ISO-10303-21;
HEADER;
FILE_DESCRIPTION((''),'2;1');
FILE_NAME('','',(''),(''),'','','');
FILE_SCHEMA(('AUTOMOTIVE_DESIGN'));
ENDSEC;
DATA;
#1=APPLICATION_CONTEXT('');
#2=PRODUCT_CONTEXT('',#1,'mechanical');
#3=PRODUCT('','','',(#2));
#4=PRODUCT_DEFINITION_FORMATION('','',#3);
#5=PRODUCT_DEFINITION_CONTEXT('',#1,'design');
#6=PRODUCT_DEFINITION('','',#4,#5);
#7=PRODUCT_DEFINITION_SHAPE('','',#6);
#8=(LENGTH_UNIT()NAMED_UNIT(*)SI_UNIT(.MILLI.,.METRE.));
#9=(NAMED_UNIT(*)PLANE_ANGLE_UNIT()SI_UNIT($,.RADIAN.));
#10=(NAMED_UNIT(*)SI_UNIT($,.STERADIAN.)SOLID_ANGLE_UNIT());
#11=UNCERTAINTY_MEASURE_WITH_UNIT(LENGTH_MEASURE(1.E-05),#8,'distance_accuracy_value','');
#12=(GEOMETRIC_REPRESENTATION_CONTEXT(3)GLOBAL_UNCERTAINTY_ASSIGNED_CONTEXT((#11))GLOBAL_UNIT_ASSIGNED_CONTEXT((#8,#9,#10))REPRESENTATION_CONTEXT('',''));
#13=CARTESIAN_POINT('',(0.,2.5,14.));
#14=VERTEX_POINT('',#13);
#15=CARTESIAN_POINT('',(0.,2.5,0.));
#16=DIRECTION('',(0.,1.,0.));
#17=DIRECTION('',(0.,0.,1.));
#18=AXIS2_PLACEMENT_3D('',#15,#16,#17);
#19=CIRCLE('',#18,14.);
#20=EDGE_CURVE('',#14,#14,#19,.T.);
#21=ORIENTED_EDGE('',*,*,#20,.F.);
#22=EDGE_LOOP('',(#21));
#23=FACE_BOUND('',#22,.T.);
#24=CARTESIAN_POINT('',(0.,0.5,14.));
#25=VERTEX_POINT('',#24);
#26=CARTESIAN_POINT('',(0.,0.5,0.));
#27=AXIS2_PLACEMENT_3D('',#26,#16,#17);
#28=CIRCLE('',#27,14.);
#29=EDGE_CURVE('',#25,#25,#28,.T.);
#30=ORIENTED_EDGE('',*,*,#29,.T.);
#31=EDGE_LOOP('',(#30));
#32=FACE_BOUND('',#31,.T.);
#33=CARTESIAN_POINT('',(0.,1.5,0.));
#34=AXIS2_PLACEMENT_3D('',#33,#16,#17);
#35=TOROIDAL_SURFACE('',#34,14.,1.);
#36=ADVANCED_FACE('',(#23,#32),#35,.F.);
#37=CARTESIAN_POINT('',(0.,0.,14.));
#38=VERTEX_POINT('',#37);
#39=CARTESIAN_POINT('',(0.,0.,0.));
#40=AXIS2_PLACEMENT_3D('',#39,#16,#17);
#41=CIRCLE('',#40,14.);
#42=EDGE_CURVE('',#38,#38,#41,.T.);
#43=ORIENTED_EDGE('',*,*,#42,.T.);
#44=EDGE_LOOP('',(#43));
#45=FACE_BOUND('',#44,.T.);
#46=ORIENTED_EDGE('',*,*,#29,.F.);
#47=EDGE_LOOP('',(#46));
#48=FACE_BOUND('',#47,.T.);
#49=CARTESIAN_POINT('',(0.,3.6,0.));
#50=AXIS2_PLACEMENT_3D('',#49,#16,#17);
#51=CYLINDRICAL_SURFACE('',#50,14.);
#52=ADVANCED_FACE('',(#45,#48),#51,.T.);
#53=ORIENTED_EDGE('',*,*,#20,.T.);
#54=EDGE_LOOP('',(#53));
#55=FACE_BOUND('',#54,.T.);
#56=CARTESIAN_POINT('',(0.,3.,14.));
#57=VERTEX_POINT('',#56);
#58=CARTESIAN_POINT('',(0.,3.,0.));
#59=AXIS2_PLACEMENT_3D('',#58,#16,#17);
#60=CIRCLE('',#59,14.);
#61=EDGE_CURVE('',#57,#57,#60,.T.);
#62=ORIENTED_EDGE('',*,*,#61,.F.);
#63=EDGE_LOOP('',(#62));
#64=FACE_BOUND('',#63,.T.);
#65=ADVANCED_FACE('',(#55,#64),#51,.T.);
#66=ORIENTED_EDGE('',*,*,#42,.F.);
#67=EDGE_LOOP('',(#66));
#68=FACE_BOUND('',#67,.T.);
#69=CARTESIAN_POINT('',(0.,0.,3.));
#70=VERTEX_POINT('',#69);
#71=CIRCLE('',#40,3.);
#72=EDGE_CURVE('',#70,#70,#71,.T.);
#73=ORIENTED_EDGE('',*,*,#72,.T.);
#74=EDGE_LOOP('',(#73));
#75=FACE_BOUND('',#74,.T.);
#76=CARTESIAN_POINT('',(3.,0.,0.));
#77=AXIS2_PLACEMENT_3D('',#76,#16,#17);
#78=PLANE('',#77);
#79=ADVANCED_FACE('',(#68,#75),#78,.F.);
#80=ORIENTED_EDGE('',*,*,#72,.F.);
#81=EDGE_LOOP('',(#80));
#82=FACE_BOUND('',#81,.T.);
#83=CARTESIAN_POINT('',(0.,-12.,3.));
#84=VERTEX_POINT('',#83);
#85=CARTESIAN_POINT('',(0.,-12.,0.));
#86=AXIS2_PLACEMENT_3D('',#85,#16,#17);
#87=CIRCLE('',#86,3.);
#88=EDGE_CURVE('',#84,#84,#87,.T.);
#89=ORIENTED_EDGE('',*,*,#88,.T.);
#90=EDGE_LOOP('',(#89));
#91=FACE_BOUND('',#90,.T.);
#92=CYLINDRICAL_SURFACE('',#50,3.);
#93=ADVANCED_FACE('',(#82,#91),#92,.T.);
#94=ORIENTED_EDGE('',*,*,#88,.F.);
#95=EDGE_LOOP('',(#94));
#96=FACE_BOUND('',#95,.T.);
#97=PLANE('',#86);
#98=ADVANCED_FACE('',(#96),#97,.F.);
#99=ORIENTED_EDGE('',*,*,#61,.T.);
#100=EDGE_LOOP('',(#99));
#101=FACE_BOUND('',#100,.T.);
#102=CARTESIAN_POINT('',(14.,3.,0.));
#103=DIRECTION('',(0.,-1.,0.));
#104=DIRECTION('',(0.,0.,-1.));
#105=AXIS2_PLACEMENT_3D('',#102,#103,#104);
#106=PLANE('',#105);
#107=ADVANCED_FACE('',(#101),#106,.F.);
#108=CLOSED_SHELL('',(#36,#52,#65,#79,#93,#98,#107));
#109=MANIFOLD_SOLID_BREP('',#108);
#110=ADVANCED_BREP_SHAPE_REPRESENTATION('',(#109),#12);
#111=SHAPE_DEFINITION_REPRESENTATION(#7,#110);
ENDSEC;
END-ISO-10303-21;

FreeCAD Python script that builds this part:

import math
import FreeCAD as App
import Part
import Sketcher
from FreeCAD import Vector
Q = App.Units.Quantity

doc = App.newDocument("Part")
params = doc.addObject("Spreadsheet::Sheet", "Params")
for row, (alias, value) in enumerate([
    ("sketch1_radius", "1 mm"),
    ("sketch1_width", "11 mm"),
    ("sketch1_width2", "14 mm"),
    ("sketch1_height", "15 mm"),
    ("sketch1_height2", "12 mm"),
    ("revolution_angle", "360 deg"),
], start=1):
    params.set(f"A{row}", alias)
    params.set(f"B{row}", "=" + value)
    params.setAlias(f"B{row}", alias)

body = doc.addObject("PartDesign::Body", "Body")

sketch1 = body.newObject("Sketcher::SketchObject", "Sketch")
sketch1.AttachmentSupport = (doc.getObject("XY_Plane"), [""])
sketch1.MapMode = "FlatFace"
sketch1.addGeometry([
    Part.LineSegment(Vector(3, 0, 0), Vector(14, 0, 0)),
    Part.LineSegment(Vector(14, 0, 0), Vector(14, 0.5, 0)),
    Part.ArcOfCircle(Part.Circle(Vector(14, 1.5, 0), Vector(0, 0, 1), 1), math.radians(90), math.radians(270)),
    Part.LineSegment(Vector(14, 2.5, 0), Vector(14, 3, 0)),
    Part.LineSegment(Vector(14, 3, 0), Vector(0, 3, 0)),
    Part.LineSegment(Vector(0, 3, 0), Vector(0, -12, 0)),
    Part.LineSegment(Vector(0, -12, 0), Vector(3, -12, 0)),
    Part.LineSegment(Vector(3, -12, 0), Vector(3, 0, 0)),
], False)
sketch1.addConstraint([
    Sketcher.Constraint("Coincident", 0, 2, 1, 1),
    Sketcher.Constraint("Coincident", 1, 2, 2, 2),
    Sketcher.Constraint("Coincident", 2, 1, 3, 1),
    Sketcher.Constraint("Coincident", 3, 2, 4, 1),
    Sketcher.Constraint("Coincident", 4, 2, 5, 1),
    Sketcher.Constraint("Coincident", 5, 2, 6, 1),
    Sketcher.Constraint("Coincident", 6, 2, 7, 1),
    Sketcher.Constraint("Coincident", 7, 2, 0, 1),
    Sketcher.Constraint("Horizontal", 0),
    Sketcher.Constraint("Vertical", 1),
    Sketcher.Constraint("Vertical", 3),
    Sketcher.Constraint("Horizontal", 4),
    Sketcher.Constraint("Vertical", 5),
    Sketcher.Constraint("Horizontal", 6),
    Sketcher.Constraint("Vertical", 7),
    Sketcher.Constraint("PointOnObject", 0, 2, -1),
    Sketcher.Constraint("PointOnObject", 4, 2, -2),
    Sketcher.Constraint("Vertical", 2, 3, 0, 2),
    Sketcher.Constraint("Vertical", 1, 2, 2, 1),
    Sketcher.Constraint("Equal", 1, 3),
    Sketcher.Constraint("Radius", 2, Q("1 mm")),
    Sketcher.Constraint("DistanceX", 0, 1, 0, 2, Q("11 mm")),
    Sketcher.Constraint("DistanceX", 4, 2, 4, 1, Q("14 mm")),
    Sketcher.Constraint("DistanceY", 5, 2, 5, 1, Q("15 mm")),
    Sketcher.Constraint("DistanceY", 7, 1, 7, 2, Q("12 mm")),
])
sketch1.setExpression("Constraints[20]", "Params.sketch1_radius")
sketch1.setExpression("Constraints[21]", "Params.sketch1_width")
sketch1.setExpression("Constraints[22]", "Params.sketch1_width2")
sketch1.setExpression("Constraints[23]", "Params.sketch1_height")
sketch1.setExpression("Constraints[24]", "Params.sketch1_height2")
revolution = body.newObject("PartDesign::Revolution", "Revolution")
revolution.Profile = sketch1
revolution.ReferenceAxis = (sketch1, ["V_Axis"])
revolution.setExpression("Angle", "Params.revolution_angle")

doc.recompute()
